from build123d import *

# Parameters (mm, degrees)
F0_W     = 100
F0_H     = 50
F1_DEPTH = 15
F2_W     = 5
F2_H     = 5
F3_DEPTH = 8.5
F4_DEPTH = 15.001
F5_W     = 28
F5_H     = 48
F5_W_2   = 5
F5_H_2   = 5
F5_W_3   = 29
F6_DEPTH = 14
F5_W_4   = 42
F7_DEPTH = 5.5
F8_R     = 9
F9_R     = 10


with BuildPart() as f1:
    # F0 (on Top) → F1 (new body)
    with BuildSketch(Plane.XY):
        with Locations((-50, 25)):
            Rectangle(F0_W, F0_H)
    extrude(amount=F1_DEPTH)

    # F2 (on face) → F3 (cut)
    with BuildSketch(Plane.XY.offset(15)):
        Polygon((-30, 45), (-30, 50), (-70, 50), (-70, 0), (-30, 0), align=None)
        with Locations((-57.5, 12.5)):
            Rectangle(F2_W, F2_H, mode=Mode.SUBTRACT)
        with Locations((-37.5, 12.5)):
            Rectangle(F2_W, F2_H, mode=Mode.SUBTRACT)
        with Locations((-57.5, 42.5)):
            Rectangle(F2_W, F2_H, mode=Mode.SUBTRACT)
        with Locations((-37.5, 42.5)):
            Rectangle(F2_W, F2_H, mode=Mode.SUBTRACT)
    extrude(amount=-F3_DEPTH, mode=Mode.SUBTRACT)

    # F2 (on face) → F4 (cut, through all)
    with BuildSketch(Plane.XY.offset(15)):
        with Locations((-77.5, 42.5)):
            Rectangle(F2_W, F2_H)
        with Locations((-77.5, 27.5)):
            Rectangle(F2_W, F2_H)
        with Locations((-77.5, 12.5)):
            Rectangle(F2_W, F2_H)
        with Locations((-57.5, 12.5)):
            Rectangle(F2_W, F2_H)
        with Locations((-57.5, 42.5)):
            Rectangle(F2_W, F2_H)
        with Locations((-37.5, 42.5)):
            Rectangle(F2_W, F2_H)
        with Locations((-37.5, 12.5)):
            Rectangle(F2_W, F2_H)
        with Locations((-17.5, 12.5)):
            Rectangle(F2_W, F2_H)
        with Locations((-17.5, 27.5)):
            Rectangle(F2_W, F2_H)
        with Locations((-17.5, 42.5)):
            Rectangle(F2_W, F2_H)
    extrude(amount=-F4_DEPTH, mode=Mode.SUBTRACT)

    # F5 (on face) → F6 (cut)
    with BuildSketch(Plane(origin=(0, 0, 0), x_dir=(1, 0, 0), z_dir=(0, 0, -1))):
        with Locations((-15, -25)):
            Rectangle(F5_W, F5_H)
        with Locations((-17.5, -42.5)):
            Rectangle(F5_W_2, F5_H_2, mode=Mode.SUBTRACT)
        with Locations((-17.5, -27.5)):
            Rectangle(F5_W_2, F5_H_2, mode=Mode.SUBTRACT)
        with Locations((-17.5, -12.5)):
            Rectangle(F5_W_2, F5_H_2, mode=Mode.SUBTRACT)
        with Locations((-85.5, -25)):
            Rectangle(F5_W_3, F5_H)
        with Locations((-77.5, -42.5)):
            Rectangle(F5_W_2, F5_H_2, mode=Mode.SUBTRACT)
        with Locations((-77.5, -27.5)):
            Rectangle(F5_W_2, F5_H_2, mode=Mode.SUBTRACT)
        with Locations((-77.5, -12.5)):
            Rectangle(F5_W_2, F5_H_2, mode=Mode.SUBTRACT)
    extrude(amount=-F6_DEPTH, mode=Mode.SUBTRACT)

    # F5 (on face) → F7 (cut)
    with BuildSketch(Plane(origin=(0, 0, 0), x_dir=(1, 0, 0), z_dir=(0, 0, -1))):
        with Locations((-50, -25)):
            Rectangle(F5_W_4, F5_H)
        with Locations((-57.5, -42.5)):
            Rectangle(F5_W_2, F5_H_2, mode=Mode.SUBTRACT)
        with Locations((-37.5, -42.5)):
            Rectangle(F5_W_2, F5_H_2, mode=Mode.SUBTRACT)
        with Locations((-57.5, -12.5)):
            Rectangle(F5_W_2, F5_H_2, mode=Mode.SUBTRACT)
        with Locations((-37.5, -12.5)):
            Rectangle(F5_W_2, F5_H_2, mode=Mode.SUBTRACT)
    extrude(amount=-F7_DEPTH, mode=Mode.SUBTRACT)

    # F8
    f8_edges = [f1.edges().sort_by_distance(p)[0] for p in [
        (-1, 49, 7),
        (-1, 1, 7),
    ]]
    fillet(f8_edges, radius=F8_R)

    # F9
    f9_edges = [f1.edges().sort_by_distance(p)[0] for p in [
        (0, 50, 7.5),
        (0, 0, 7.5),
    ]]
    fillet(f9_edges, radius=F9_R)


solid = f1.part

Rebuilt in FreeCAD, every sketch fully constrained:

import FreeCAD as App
import Part
import Sketcher
from FreeCAD import Vector
Q = App.Units.Quantity


def edges_at(feature, points):
    """Names of the edges that pass closest to the given points."""
    edges = feature.Shape.Edges
    near = lambda p: min(range(len(edges)), key=lambda i: edges[i].distToShape(Part.Vertex(*p))[0])
    return sorted({f"Edge{near(p) + 1}" for p in points})

doc = App.newDocument("Part")
body = doc.addObject("PartDesign::Body", "Body")

# Sketch on XY plane
sketch1 = body.newObject("Sketcher::SketchObject", "Sketch")
sketch1.AttachmentSupport = (doc.getObject("XY_Plane"), [""])
sketch1.MapMode = "FlatFace"
sketch1.addGeometry(Part.LineSegment(Vector(-100, 50, 0), Vector(-100, 0, 0)), False)
sketch1.addGeometry(Part.LineSegment(Vector(-100, 0, 0), Vector(0, 0, 0)), False)
sketch1.addGeometry(Part.LineSegment(Vector(0, 0, 0), Vector(0, 50, 0)), False)
sketch1.addGeometry(Part.LineSegment(Vector(0, 50, 0), Vector(-100, 50, 0)), False)
sketch1.addConstraint(Sketcher.Constraint("Coincident", 0, 2, 1, 1))
sketch1.addConstraint(Sketcher.Constraint("Coincident", 1, 2, 2, 1))
sketch1.addConstraint(Sketcher.Constraint("Coincident", 2, 2, 3, 1))
sketch1.addConstraint(Sketcher.Constraint("Coincident", 3, 2, 0, 1))
sketch1.addConstraint(Sketcher.Constraint("Vertical", 0))
sketch1.addConstraint(Sketcher.Constraint("Horizontal", 1))
sketch1.addConstraint(Sketcher.Constraint("Vertical", 2))
sketch1.addConstraint(Sketcher.Constraint("Horizontal", 3))
sketch1.addConstraint(Sketcher.Constraint("Coincident", 1, 2, -1, 1))
sketch1.addConstraint(Sketcher.Constraint("DistanceX", 1, 1, 1, 2, Q("100 mm")))
sketch1.addConstraint(Sketcher.Constraint("DistanceY", 0, 2, 0, 1, Q("50 mm")))
pad1 = body.newObject("PartDesign::Pad", "Pad")
pad1.Profile = sketch1
pad1.Length = 15

# Sketch on XY plane
sketch2 = body.newObject("Sketcher::SketchObject", "Sketch001")
sketch2.AttachmentSupport = (doc.getObject("XY_Plane"), [""])
sketch2.MapMode = "FlatFace"
sketch2.AttachmentOffset = App.Placement(Vector(0, 0, 15), App.Rotation())
sketch2.addGeometry(Part.LineSegment(Vector(-30, 50, 0), Vector(-70, 50, 0)), False)
sketch2.addGeometry(Part.LineSegment(Vector(-70, 50, 0), Vector(-70, 0, 0)), False)
sketch2.addGeometry(Part.LineSegment(Vector(-70, 0, 0), Vector(-30, 0, 0)), False)
sketch2.addGeometry(Part.LineSegment(Vector(-30, 0, 0), Vector(-30, 50, 0)), False)
sketch2.addGeometry(Part.LineSegment(Vector(-55, 10, 0), Vector(-60, 10, 0)), False)
sketch2.addGeometry(Part.LineSegment(Vector(-60, 10, 0), Vector(-60, 15, 0)), False)
sketch2.addGeometry(Part.LineSegment(Vector(-60, 15, 0), Vector(-55, 15, 0)), False)
sketch2.addGeometry(Part.LineSegment(Vector(-55, 15, 0), Vector(-55, 10, 0)), False)
sketch2.addGeometry(Part.LineSegment(Vector(-35, 10, 0), Vector(-40, 10, 0)), False)
sketch2.addGeometry(Part.LineSegment(Vector(-40, 10, 0), Vector(-40, 15, 0)), False)
sketch2.addGeometry(Part.LineSegment(Vector(-40, 15, 0), Vector(-35, 15, 0)), False)
sketch2.addGeometry(Part.LineSegment(Vector(-35, 15, 0), Vector(-35, 10, 0)), False)
sketch2.addGeometry(Part.LineSegment(Vector(-55, 40, 0), Vector(-60, 40, 0)), False)
sketch2.addGeometry(Part.LineSegment(Vector(-60, 40, 0), Vector(-60, 45, 0)), False)
sketch2.addGeometry(Part.LineSegment(Vector(-60, 45, 0), Vector(-55, 45, 0)), False)
sketch2.addGeometry(Part.LineSegment(Vector(-55, 45, 0), Vector(-55, 40, 0)), False)
sketch2.addGeometry(Part.LineSegment(Vector(-35, 40, 0), Vector(-40, 40, 0)), False)
sketch2.addGeometry(Part.LineSegment(Vector(-40, 40, 0), Vector(-40, 45, 0)), False)
sketch2.addGeometry(Part.LineSegment(Vector(-40, 45, 0), Vector(-35, 45, 0)), False)
sketch2.addGeometry(Part.LineSegment(Vector(-35, 45, 0), Vector(-35, 40, 0)), False)
sketch2.addConstraint(Sketcher.Constraint("Coincident", 0, 2, 1, 1))
sketch2.addConstraint(Sketcher.Constraint("Coincident", 1, 2, 2, 1))
sketch2.addConstraint(Sketcher.Constraint("Coincident", 2, 2, 3, 1))
sketch2.addConstraint(Sketcher.Constraint("Coincident", 3, 2, 0, 1))
sketch2.addConstraint(Sketcher.Constraint("Coincident", 4, 2, 5, 1))
sketch2.addConstraint(Sketcher.Constraint("Coincident", 5, 2, 6, 1))
sketch2.addConstraint(Sketcher.Constraint("Coincident", 6, 2, 7, 1))
sketch2.addConstraint(Sketcher.Constraint("Coincident", 7, 2, 4, 1))
sketch2.addConstraint(Sketcher.Constraint("Coincident", 8, 2, 9, 1))
sketch2.addConstraint(Sketcher.Constraint("Coincident", 9, 2, 10, 1))
sketch2.addConstraint(Sketcher.Constraint("Coincident", 10, 2, 11, 1))
sketch2.addConstraint(Sketcher.Constraint("Coincident", 11, 2, 8, 1))
sketch2.addConstraint(Sketcher.Constraint("Coincident", 12, 2, 13, 1))
sketch2.addConstraint(Sketcher.Constraint("Coincident", 13, 2, 14, 1))
sketch2.addConstraint(Sketcher.Constraint("Coincident", 14, 2, 15, 1))
sketch2.addConstraint(Sketcher.Constraint("Coincident", 15, 2, 12, 1))
sketch2.addConstraint(Sketcher.Constraint("Coincident", 16, 2, 17, 1))
sketch2.addConstraint(Sketcher.Constraint("Coincident", 17, 2, 18, 1))
sketch2.addConstraint(Sketcher.Constraint("Coincident", 18, 2, 19, 1))
sketch2.addConstraint(Sketcher.Constraint("Coincident", 19, 2, 16, 1))
sketch2.addConstraint(Sketcher.Constraint("Horizontal", 0))
sketch2.addConstraint(Sketcher.Constraint("Vertical", 1))
sketch2.addConstraint(Sketcher.Constraint("Horizontal", 2))
sketch2.addConstraint(Sketcher.Constraint("Vertical", 3))
sketch2.addConstraint(Sketcher.Constraint("Horizontal", 4))
sketch2.addConstraint(Sketcher.Constraint("Vertical", 5))
sketch2.addConstraint(Sketcher.Constraint("Horizontal", 6))
sketch2.addConstraint(Sketcher.Constraint("Vertical", 7))
sketch2.addConstraint(Sketcher.Constraint("Horizontal", 8))
sketch2.addConstraint(Sketcher.Constraint("Vertical", 9))
sketch2.addConstraint(Sketcher.Constraint("Horizontal", 10))
sketch2.addConstraint(Sketcher.Constraint("Vertical", 11))
sketch2.addConstraint(Sketcher.Constraint("Horizontal", 12))
sketch2.addConstraint(Sketcher.Constraint("Vertical", 13))
sketch2.addConstraint(Sketcher.Constraint("Horizontal", 14))
sketch2.addConstraint(Sketcher.Constraint("Vertical", 15))
sketch2.addConstraint(Sketcher.Constraint("Horizontal", 16))
sketch2.addConstraint(Sketcher.Constraint("Vertical", 17))
sketch2.addConstraint(Sketcher.Constraint("Horizontal", 18))
sketch2.addConstraint(Sketcher.Constraint("Vertical", 19))
sketch2.addConstraint(Sketcher.Constraint("PointOnObject", 1, 2, -1))
sketch2.addConstraint(Sketcher.Constraint("Horizontal", 7, 2, 8, 2))
sketch2.addConstraint(Sketcher.Constraint("Horizontal", 6, 2, 9, 2))
sketch2.addConstraint(Sketcher.Constraint("Horizontal", 15, 2, 16, 2))
sketch2.addConstraint(Sketcher.Constraint("Horizontal", 14, 2, 17, 2))
sketch2.addConstraint(Sketcher.Constraint("Vertical", 5, 2, 12, 2))
sketch2.addConstraint(Sketcher.Constraint("Vertical", 7, 2, 14, 2))
sketch2.addConstraint(Sketcher.Constraint("Vertical", 9, 2, 16, 2))
sketch2.addConstraint(Sketcher.Constraint("Vertical", 11, 2, 18, 2))
sketch2.addConstraint(Sketcher.Constraint("Equal", 6, 8))
sketch2.addConstraint(Sketcher.Constraint("Equal", 18, 5))
sketch2.addConstraint(Sketcher.Constraint("Equal", 11, 13))
sketch2.addConstraint(Sketcher.Constraint("DistanceX", 0, 2, 0, 1, Q("40 mm")))
sketch2.addConstraint(Sketcher.Constraint("DistanceX", 4, 2, 4, 1, Q("5 mm")))
sketch2.addConstraint(Sketcher.Constraint("DistanceY", 1, 2, 1, 1, Q("50 mm")))
sketch2.addConstraint(Sketcher.Constraint("DistanceX", 0, 2, -1, 1, Q("70 mm")))
sketch2.addConstraint(Sketcher.Constraint("DistanceX", 4, 2, -1, 1, Q("60 mm")))
sketch2.addConstraint(Sketcher.Constraint("DistanceY", -1, 1, 4, 2, Q("10 mm")))
sketch2.addConstraint(Sketcher.Constraint("DistanceX", 8, 2, -1, 1, Q("40 mm")))
sketch2.addConstraint(Sketcher.Constraint("DistanceY", -1, 1, 12, 2, Q("40 mm")))
pocket1 = body.newObject("PartDesign::Pocket", "Pocket")
pocket1.Profile = sketch2
pocket1.Length = 8.5

# Sketch on XY plane
sketch3 = body.newObject("Sketcher::SketchObject", "Sketch002")
sketch3.AttachmentSupport = (doc.getObject("XY_Plane"), [""])
sketch3.MapMode = "FlatFace"
sketch3.AttachmentOffset = App.Placement(Vector(0, 0, 15), App.Rotation())
sketch3.addGeometry(Part.LineSegment(Vector(-80, 45, 0), Vector(-80, 40, 0)), False)
sketch3.addGeometry(Part.LineSegment(Vector(-80, 40, 0), Vector(-75, 40, 0)), False)
sketch3.addGeometry(Part.LineSegment(Vector(-75, 40, 0), Vector(-75, 45, 0)), False)
sketch3.addGeometry(Part.LineSegment(Vector(-75, 45, 0), Vector(-80, 45, 0)), False)
sketch3.addGeometry(Part.LineSegment(Vector(-80, 30, 0), Vector(-80, 25, 0)), False)
sketch3.addGeometry(Part.LineSegment(Vector(-80, 25, 0), Vector(-75, 25, 0)), False)
sketch3.addGeometry(Part.LineSegment(Vector(-75, 25, 0), Vector(-75, 30, 0)), False)
sketch3.addGeometry(Part.LineSegment(Vector(-75, 30, 0), Vector(-80, 30, 0)), False)
sketch3.addGeometry(Part.LineSegment(Vector(-80, 15, 0), Vector(-80, 10, 0)), False)
sketch3.addGeometry(Part.LineSegment(Vector(-80, 10, 0), Vector(-75, 10, 0)), False)
sketch3.addGeometry(Part.LineSegment(Vector(-75, 10, 0), Vector(-75, 15, 0)), False)
sketch3.addGeometry(Part.LineSegment(Vector(-75, 15, 0), Vector(-80, 15, 0)), False)
sketch3.addGeometry(Part.LineSegment(Vector(-60, 15, 0), Vector(-60, 10, 0)), False)
sketch3.addGeometry(Part.LineSegment(Vector(-60, 10, 0), Vector(-55, 10, 0)), False)
sketch3.addGeometry(Part.LineSegment(Vector(-55, 10, 0), Vector(-55, 15, 0)), False)
sketch3.addGeometry(Part.LineSegment(Vector(-55, 15, 0), Vector(-60, 15, 0)), False)
sketch3.addGeometry(Part.LineSegment(Vector(-60, 45, 0), Vector(-60, 40, 0)), False)
sketch3.addGeometry(Part.LineSegment(Vector(-60, 40, 0), Vector(-55, 40, 0)), False)
sketch3.addGeometry(Part.LineSegment(Vector(-55, 40, 0), Vector(-55, 45, 0)), False)
sketch3.addGeometry(Part.LineSegment(Vector(-55, 45, 0), Vector(-60, 45, 0)), False)
sketch3.addGeometry(Part.LineSegment(Vector(-40, 45, 0), Vector(-40, 40, 0)), False)
sketch3.addGeometry(Part.LineSegment(Vector(-40, 40, 0), Vector(-35, 40, 0)), False)
sketch3.addGeometry(Part.LineSegment(Vector(-35, 40, 0), Vector(-35, 45, 0)), False)
sketch3.addGeometry(Part.LineSegment(Vector(-35, 45, 0), Vector(-40, 45, 0)), False)
sketch3.addGeometry(Part.LineSegment(Vector(-40, 15, 0), Vector(-40, 10, 0)), False)
sketch3.addGeometry(Part.LineSegment(Vector(-40, 10, 0), Vector(-35, 10, 0)), False)
sketch3.addGeometry(Part.LineSegment(Vector(-35, 10, 0), Vector(-35, 15, 0)), False)
sketch3.addGeometry(Part.LineSegment(Vector(-35, 15, 0), Vector(-40, 15, 0)), False)
sketch3.addGeometry(Part.LineSegment(Vector(-20, 15, 0), Vector(-20, 10, 0)), False)
sketch3.addGeometry(Part.LineSegment(Vector(-20, 10, 0), Vector(-15, 10, 0)), False)
sketch3.addGeometry(Part.LineSegment(Vector(-15, 10, 0), Vector(-15, 15, 0)), False)
sketch3.addGeometry(Part.LineSegment(Vector(-15, 15, 0), Vector(-20, 15, 0)), False)
sketch3.addGeometry(Part.LineSegment(Vector(-20, 30, 0), Vector(-20, 25, 0)), False)
sketch3.addGeometry(Part.LineSegment(Vector(-20, 25, 0), Vector(-15, 25, 0)), False)
sketch3.addGeometry(Part.LineSegment(Vector(-15, 25, 0), Vector(-15, 30, 0)), False)
sketch3.addGeometry(Part.LineSegment(Vector(-15, 30, 0), Vector(-20, 30, 0)), False)
sketch3.addGeometry(Part.LineSegment(Vector(-20, 45, 0), Vector(-20, 40, 0)), False)
sketch3.addGeometry(Part.LineSegment(Vector(-20, 40, 0), Vector(-15, 40, 0)), False)
sketch3.addGeometry(Part.LineSegment(Vector(-15, 40, 0), Vector(-15, 45, 0)), False)
sketch3.addGeometry(Part.LineSegment(Vector(-15, 45, 0), Vector(-20, 45, 0)), False)
sketch3.addConstraint(Sketcher.Constraint("Coincident", 0, 2, 1, 1))
sketch3.addConstraint(Sketcher.Constraint("Coincident", 1, 2, 2, 1))
sketch3.addConstraint(Sketcher.Constraint("Coincident", 2, 2, 3, 1))
sketch3.addConstraint(Sketcher.Constraint("Coincident", 3, 2, 0, 1))
sketch3.addConstraint(Sketcher.Constraint("Coincident", 4, 2, 5, 1))
sketch3.addConstraint(Sketcher.Constraint("Coincident", 5, 2, 6, 1))
sketch3.addConstraint(Sketcher.Constraint("Coincident", 6, 2, 7, 1))
sketch3.addConstraint(Sketcher.Constraint("Coincident", 7, 2, 4, 1))
sketch3.addConstraint(Sketcher.Constraint("Coincident", 8, 2, 9, 1))
sketch3.addConstraint(Sketcher.Constraint("Coincident", 9, 2, 10, 1))
sketch3.addConstraint(Sketcher.Constraint("Coincident", 10, 2, 11, 1))
sketch3.addConstraint(Sketcher.Constraint("Coincident", 11, 2, 8, 1))
sketch3.addConstraint(Sketcher.Constraint("Coincident", 12, 2, 13, 1))
sketch3.addConstraint(Sketcher.Constraint("Coincident", 13, 2, 14, 1))
sketch3.addConstraint(Sketcher.Constraint("Coincident", 14, 2, 15, 1))
sketch3.addConstraint(Sketcher.Constraint("Coincident", 15, 2, 12, 1))
sketch3.addConstraint(Sketcher.Constraint("Coincident", 16, 2, 17, 1))
sketch3.addConstraint(Sketcher.Constraint("Coincident", 17, 2, 18, 1))
sketch3.addConstraint(Sketcher.Constraint("Coincident", 18, 2, 19, 1))
sketch3.addConstraint(Sketcher.Constraint("Coincident", 19, 2, 16, 1))
sketch3.addConstraint(Sketcher.Constraint("Coincident", 20, 2, 21, 1))
sketch3.addConstraint(Sketcher.Constraint("Coincident", 21, 2, 22, 1))
sketch3.addConstraint(Sketcher.Constraint("Coincident", 22, 2, 23, 1))
sketch3.addConstraint(Sketcher.Constraint("Coincident", 23, 2, 20, 1))
sketch3.addConstraint(Sketcher.Constraint("Coincident", 24, 2, 25, 1))
sketch3.addConstraint(Sketcher.Constraint("Coincident", 25, 2, 26, 1))
sketch3.addConstraint(Sketcher.Constraint("Coincident", 26, 2, 27, 1))
sketch3.addConstraint(Sketcher.Constraint("Coincident", 27, 2, 24, 1))
sketch3.addConstraint(Sketcher.Constraint("Coincident", 28, 2, 29, 1))
sketch3.addConstraint(Sketcher.Constraint("Coincident", 29, 2, 30, 1))
sketch3.addConstraint(Sketcher.Constraint("Coincident", 30, 2, 31, 1))
sketch3.addConstraint(Sketcher.Constraint("Coincident", 31, 2, 28, 1))
sketch3.addConstraint(Sketcher.Constraint("Coincident", 32, 2, 33, 1))
sketch3.addConstraint(Sketcher.Constraint("Coincident", 33, 2, 34, 1))
sketch3.addConstraint(Sketcher.Constraint("Coincident", 34, 2, 35, 1))
sketch3.addConstraint(Sketcher.Constraint("Coincident", 35, 2, 32, 1))
sketch3.addConstraint(Sketcher.Constraint("Coincident", 36, 2, 37, 1))
sketch3.addConstraint(Sketcher.Constraint("Coincident", 37, 2, 38, 1))
sketch3.addConstraint(Sketcher.Constraint("Coincident", 38, 2, 39, 1))
sketch3.addConstraint(Sketcher.Constraint("Coincident", 39, 2, 36, 1))
sketch3.addConstraint(Sketcher.Constraint("Vertical", 0))
sketch3.addConstraint(Sketcher.Constraint("Horizontal", 1))
sketch3.addConstraint(Sketcher.Constraint("Vertical", 2))
sketch3.addConstraint(Sketcher.Constraint("Horizontal", 3))
sketch3.addConstraint(Sketcher.Constraint("Vertical", 4))
sketch3.addConstraint(Sketcher.Constraint("Horizontal", 5))
sketch3.addConstraint(Sketcher.Constraint("Vertical", 6))
sketch3.addConstraint(Sketcher.Constraint("Horizontal", 7))
sketch3.addConstraint(Sketcher.Constraint("Vertical", 8))
sketch3.addConstraint(Sketcher.Constraint("Horizontal", 9))
sketch3.addConstraint(Sketcher.Constraint("Vertical", 10))
sketch3.addConstraint(Sketcher.Constraint("Horizontal", 11))
sketch3.addConstraint(Sketcher.Constraint("Vertical", 12))
sketch3.addConstraint(Sketcher.Constraint("Horizontal", 13))
sketch3.addConstraint(Sketcher.Constraint("Vertical", 14))
sketch3.addConstraint(Sketcher.Constraint("Horizontal", 15))
sketch3.addConstraint(Sketcher.Constraint("Vertical", 16))
sketch3.addConstraint(Sketcher.Constraint("Horizontal", 17))
sketch3.addConstraint(Sketcher.Constraint("Vertical", 18))
sketch3.addConstraint(Sketcher.Constraint("Horizontal", 19))
sketch3.addConstraint(Sketcher.Constraint("Vertical", 20))
sketch3.addConstraint(Sketcher.Constraint("Horizontal", 21))
sketch3.addConstraint(Sketcher.Constraint("Vertical", 22))
sketch3.addConstraint(Sketcher.Constraint("Horizontal", 23))
sketch3.addConstraint(Sketcher.Constraint("Vertical", 24))
sketch3.addConstraint(Sketcher.Constraint("Horizontal", 25))
sketch3.addConstraint(Sketcher.Constraint("Vertical", 26))
sketch3.addConstraint(Sketcher.Constraint("Horizontal", 27))
sketch3.addConstraint(Sketcher.Constraint("Vertical", 28))
sketch3.addConstraint(Sketcher.Constraint("Horizontal", 29))
sketch3.addConstraint(Sketcher.Constraint("Vertical", 30))
sketch3.addConstraint(Sketcher.Constraint("Horizontal", 31))
sketch3.addConstraint(Sketcher.Constraint("Vertical", 32))
sketch3.addConstraint(Sketcher.Constraint("Horizontal", 33))
sketch3.addConstraint(Sketcher.Constraint("Vertical", 34))
sketch3.addConstraint(Sketcher.Constraint("Horizontal", 35))
sketch3.addConstraint(Sketcher.Constraint("Vertical", 36))
sketch3.addConstraint(Sketcher.Constraint("Horizontal", 37))
sketch3.addConstraint(Sketcher.Constraint("Vertical", 38))
sketch3.addConstraint(Sketcher.Constraint("Horizontal", 39))
sketch3.addConstraint(Sketcher.Constraint("Horizontal", 9, 2, 12, 2))
sketch3.addConstraint(Sketcher.Constraint("Horizontal", 11, 2, 14, 2))
sketch3.addConstraint(Sketcher.Constraint("Horizontal", 1, 2, 16, 2))
sketch3.addConstraint(Sketcher.Constraint("Horizontal", 3, 2, 18, 2))
sketch3.addConstraint(Sketcher.Constraint("Horizontal", 17, 2, 20, 2))
sketch3.addConstraint(Sketcher.Constraint("Horizontal", 19, 2, 22, 2))
sketch3.addConstraint(Sketcher.Constraint("Horizontal", 13, 2, 24, 2))
sketch3.addConstraint(Sketcher.Constraint("Horizontal", 15, 2, 26, 2))
sketch3.addConstraint(Sketcher.Constraint("Horizontal", 25, 2, 28, 2))
sketch3.addConstraint(Sketcher.Constraint("Horizontal", 27, 2, 30, 2))
sketch3.addConstraint(Sketcher.Constraint("Horizontal", 5, 2, 32, 2))
sketch3.addConstraint(Sketcher.Constraint("Horizontal", 7, 2, 34, 2))
sketch3.addConstraint(Sketcher.Constraint("Horizontal", 21, 2, 36, 2))
sketch3.addConstraint(Sketcher.Constraint("Horizontal", 23, 2, 38, 2))
sketch3.addConstraint(Sketcher.Constraint("Vertical", 3, 2, 4, 2))
sketch3.addConstraint(Sketcher.Constraint("Vertical", 2, 2, 5, 2))
sketch3.addConstraint(Sketcher.Constraint("Vertical", 7, 2, 8, 2))
sketch3.addConstraint(Sketcher.Constraint("Vertical", 6, 2, 9, 2))
sketch3.addConstraint(Sketcher.Constraint("Vertical", 15, 2, 16, 2))
sketch3.addConstraint(Sketcher.Constraint("Vertical", 14, 2, 17, 2))
sketch3.addConstraint(Sketcher.Constraint("Vertical", 23, 2, 24, 2))
sketch3.addConstraint(Sketcher.Constraint("Vertical", 22, 2, 25, 2))
sketch3.addConstraint(Sketcher.Constraint("Vertical", 31, 2, 32, 2))
sketch3.addConstraint(Sketcher.Constraint("Vertical", 30, 2, 33, 2))
sketch3.addConstraint(Sketcher.Constraint("Vertical", 35, 2, 36, 2))
sketch3.addConstraint(Sketcher.Constraint("Vertical", 34, 2, 37, 2))
sketch3.addConstraint(Sketcher.Constraint("Equal", 11, 13))
sketch3.addConstraint(Sketcher.Constraint("Equal", 19, 21))
sketch3.addConstraint(Sketcher.Constraint("Equal", 27, 29))
sketch3.addConstraint(Sketcher.Constraint("Equal", 39, 0))
sketch3.addConstraint(Sketcher.Constraint("Equal", 2, 4))
sketch3.addConstraint(Sketcher.Constraint("Equal", 6, 8))
sketch3.addConstraint(Sketcher.Constraint("DistanceX", 1, 1, 1, 2, Q("5 mm")))
sketch3.addConstraint(Sketcher.Constraint("DistanceX", 0, 2, -1, 1, Q("80 mm")))
sketch3.addConstraint(Sketcher.Constraint("DistanceY", -1, 1, 0, 2, Q("40 mm")))
sketch3.addConstraint(Sketcher.Constraint("DistanceY", -1, 1, 4, 2, Q("25 mm")))
sketch3.addConstraint(Sketcher.Constraint("DistanceY", -1, 1, 8, 2, Q("10 mm")))
sketch3.addConstraint(Sketcher.Constraint("DistanceX", 12, 2, -1, 1, Q("60 mm")))
sketch3.addConstraint(Sketcher.Constraint("DistanceX", 20, 2, -1, 1, Q("40 mm")))
sketch3.addConstraint(Sketcher.Constraint("DistanceX", 28, 2, -1, 1, Q("20 mm")))
pocket2 = body.newObject("PartDesign::Pocket", "Pocket001")
pocket2.Profile = sketch3
pocket2.Type = "ThroughAll"

# Sketch on XY plane
sketch4 = body.newObject("Sketcher::SketchObject", "Sketch003")
sketch4.AttachmentSupport = (doc.getObject("XY_Plane"), [""])
sketch4.MapMode = "FlatFace"
sketch4.addGeometry(Part.LineSegment(Vector(-29, 1, 0), Vector(-29, 49, 0)), False)
sketch4.addGeometry(Part.LineSegment(Vector(-29, 49, 0), Vector(-1, 49, 0)), False)
sketch4.addGeometry(Part.LineSegment(Vector(-1, 49, 0), Vector(-1, 1, 0)), False)
sketch4.addGeometry(Part.LineSegment(Vector(-1, 1, 0), Vector(-29, 1, 0)), False)
sketch4.addGeometry(Part.LineSegment(Vector(-15, 45, 0), Vector(-20, 45, 0)), False)
sketch4.addGeometry(Part.LineSegment(Vector(-20, 45, 0), Vector(-20, 40, 0)), False)
sketch4.addGeometry(Part.LineSegment(Vector(-20, 40, 0), Vector(-15, 40, 0)), False)
sketch4.addGeometry(Part.LineSegment(Vector(-15, 40, 0), Vector(-15, 45, 0)), False)
sketch4.addGeometry(Part.LineSegment(Vector(-15, 30, 0), Vector(-20, 30, 0)), False)
sketch4.addGeometry(Part.LineSegment(Vector(-20, 30, 0), Vector(-20, 25, 0)), False)
sketch4.addGeometry(Part.LineSegment(Vector(-20, 25, 0), Vector(-15, 25, 0)), False)
sketch4.addGeometry(Part.LineSegment(Vector(-15, 25, 0), Vector(-15, 30, 0)), False)
sketch4.addGeometry(Part.LineSegment(Vector(-15, 15, 0), Vector(-20, 15, 0)), False)
sketch4.addGeometry(Part.LineSegment(Vector(-20, 15, 0), Vector(-20, 10, 0)), False)
sketch4.addGeometry(Part.LineSegment(Vector(-20, 10, 0), Vector(-15, 10, 0)), False)
sketch4.addGeometry(Part.LineSegment(Vector(-15, 10, 0), Vector(-15, 15, 0)), False)
sketch4.addGeometry(Part.LineSegment(Vector(-100, 1, 0), Vector(-100, 49, 0)), False)
sketch4.addGeometry(Part.LineSegment(Vector(-100, 49, 0), Vector(-71, 49, 0)), False)
sketch4.addGeometry(Part.LineSegment(Vector(-71, 49, 0), Vector(-71, 1, 0)), False)
sketch4.addGeometry(Part.LineSegment(Vector(-71, 1, 0), Vector(-100, 1, 0)), False)
sketch4.addGeometry(Part.LineSegment(Vector(-75, 45, 0), Vector(-80, 45, 0)), False)
sketch4.addGeometry(Part.LineSegment(Vector(-80, 45, 0), Vector(-80, 40, 0)), False)
sketch4.addGeometry(Part.LineSegment(Vector(-80, 40, 0), Vector(-75, 40, 0)), False)
sketch4.addGeometry(Part.LineSegment(Vector(-75, 40, 0), Vector(-75, 45, 0)), False)
sketch4.addGeometry(Part.LineSegment(Vector(-75, 30, 0), Vector(-80, 30, 0)), False)
sketch4.addGeometry(Part.LineSegment(Vector(-80, 30, 0), Vector(-80, 25, 0)), False)
sketch4.addGeometry(Part.LineSegment(Vector(-80, 25, 0), Vector(-75, 25, 0)), False)
sketch4.addGeometry(Part.LineSegment(Vector(-75, 25, 0), Vector(-75, 30, 0)), False)
sketch4.addGeometry(Part.LineSegment(Vector(-75, 15, 0), Vector(-80, 15, 0)), False)
sketch4.addGeometry(Part.LineSegment(Vector(-80, 15, 0), Vector(-80, 10, 0)), False)
sketch4.addGeometry(Part.LineSegment(Vector(-80, 10, 0), Vector(-75, 10, 0)), False)
sketch4.addGeometry(Part.LineSegment(Vector(-75, 10, 0), Vector(-75, 15, 0)), False)
sketch4.addConstraint(Sketcher.Constraint("Coincident", 0, 2, 1, 1))
sketch4.addConstraint(Sketcher.Constraint("Coincident", 1, 2, 2, 1))
sketch4.addConstraint(Sketcher.Constraint("Coincident", 2, 2, 3, 1))
sketch4.addConstraint(Sketcher.Constraint("Coincident", 3, 2, 0, 1))
sketch4.addConstraint(Sketcher.Constraint("Coincident", 4, 2, 5, 1))
sketch4.addConstraint(Sketcher.Constraint("Coincident", 5, 2, 6, 1))
sketch4.addConstraint(Sketcher.Constraint("Coincident", 6, 2, 7, 1))
sketch4.addConstraint(Sketcher.Constraint("Coincident", 7, 2, 4, 1))
sketch4.addConstraint(Sketcher.Constraint("Coincident", 8, 2, 9, 1))
sketch4.addConstraint(Sketcher.Constraint("Coincident", 9, 2, 10, 1))
sketch4.addConstraint(Sketcher.Constraint("Coincident", 10, 2, 11, 1))
sketch4.addConstraint(Sketcher.Constraint("Coincident", 11, 2, 8, 1))
sketch4.addConstraint(Sketcher.Constraint("Coincident", 12, 2, 13, 1))
sketch4.addConstraint(Sketcher.Constraint("Coincident", 13, 2, 14, 1))
sketch4.addConstraint(Sketcher.Constraint("Coincident", 14, 2, 15, 1))
sketch4.addConstraint(Sketcher.Constraint("Coincident", 15, 2, 12, 1))
sketch4.addConstraint(Sketcher.Constraint("Coincident", 16, 2, 17, 1))
sketch4.addConstraint(Sketcher.Constraint("Coincident", 17, 2, 18, 1))
sketch4.addConstraint(Sketcher.Constraint("Coincident", 18, 2, 19, 1))
sketch4.addConstraint(Sketcher.Constraint("Coincident", 19, 2, 16, 1))
sketch4.addConstraint(Sketcher.Constraint("Coincident", 20, 2, 21, 1))
sketch4.addConstraint(Sketcher.Constraint("Coincident", 21, 2, 22, 1))
sketch4.addConstraint(Sketcher.Constraint("Coincident", 22, 2, 23, 1))
sketch4.addConstraint(Sketcher.Constraint("Coincident", 23, 2, 20, 1))
sketch4.addConstraint(Sketcher.Constraint("Coincident", 24, 2, 25, 1))
sketch4.addConstraint(Sketcher.Constraint("Coincident", 25, 2, 26, 1))
sketch4.addConstraint(Sketcher.Constraint("Coincident", 26, 2, 27, 1))
sketch4.addConstraint(Sketcher.Constraint("Coincident", 27, 2, 24, 1))
sketch4.addConstraint(Sketcher.Constraint("Coincident", 28, 2, 29, 1))
sketch4.addConstraint(Sketcher.Constraint("Coincident", 29, 2, 30, 1))
sketch4.addConstraint(Sketcher.Constraint("Coincident", 30, 2, 31, 1))
sketch4.addConstraint(Sketcher.Constraint("Coincident", 31, 2, 28, 1))
sketch4.addConstraint(Sketcher.Constraint("Vertical", 0))
sketch4.addConstraint(Sketcher.Constraint("Horizontal", 1))
sketch4.addConstraint(Sketcher.Constraint("Vertical", 2))
sketch4.addConstraint(Sketcher.Constraint("Horizontal", 3))
sketch4.addConstraint(Sketcher.Constraint("Horizontal", 4))
sketch4.addConstraint(Sketcher.Constraint("Vertical", 5))
sketch4.addConstraint(Sketcher.Constraint("Horizontal", 6))
sketch4.addConstraint(Sketcher.Constraint("Vertical", 7))
sketch4.addConstraint(Sketcher.Constraint("Horizontal", 8))
sketch4.addConstraint(Sketcher.Constraint("Vertical", 9))
sketch4.addConstraint(Sketcher.Constraint("Horizontal", 10))
sketch4.addConstraint(Sketcher.Constraint("Vertical", 11))
sketch4.addConstraint(Sketcher.Constraint("Horizontal", 12))
sketch4.addConstraint(Sketcher.Constraint("Vertical", 13))
sketch4.addConstraint(Sketcher.Constraint("Horizontal", 14))
sketch4.addConstraint(Sketcher.Constraint("Vertical", 15))
sketch4.addConstraint(Sketcher.Constraint("Vertical", 16))
sketch4.addConstraint(Sketcher.Constraint("Horizontal", 17))
sketch4.addConstraint(Sketcher.Constraint("Vertical", 18))
sketch4.addConstraint(Sketcher.Constraint("Horizontal", 19))
sketch4.addConstraint(Sketcher.Constraint("Horizontal", 20))
sketch4.addConstraint(Sketcher.Constraint("Vertical", 21))
sketch4.addConstraint(Sketcher.Constraint("Horizontal", 22))
sketch4.addConstraint(Sketcher.Constraint("Vertical", 23))
sketch4.addConstraint(Sketcher.Constraint("Horizontal", 24))
sketch4.addConstraint(Sketcher.Constraint("Vertical", 25))
sketch4.addConstraint(Sketcher.Constraint("Horizontal", 26))
sketch4.addConstraint(Sketcher.Constraint("Vertical", 27))
sketch4.addConstraint(Sketcher.Constraint("Horizontal", 28))
sketch4.addConstraint(Sketcher.Constraint("Vertical", 29))
sketch4.addConstraint(Sketcher.Constraint("Horizontal", 30))
sketch4.addConstraint(Sketcher.Constraint("Vertical", 31))
sketch4.addConstraint(Sketcher.Constraint("Horizontal", 1, 2, 16, 2))
sketch4.addConstraint(Sketcher.Constraint("Horizontal", 3, 2, 18, 2))
sketch4.addConstraint(Sketcher.Constraint("Horizontal", 7, 2, 20, 2))
sketch4.addConstraint(Sketcher.Constraint("Horizontal", 6, 2, 21, 2))
sketch4.addConstraint(Sketcher.Constraint("Horizontal", 11, 2, 24, 2))
sketch4.addConstraint(Sketcher.Constraint("Horizontal", 10, 2, 25, 2))
sketch4.addConstraint(Sketcher.Constraint("Horizontal", 15, 2, 28, 2))
sketch4.addConstraint(Sketcher.Constraint("Horizontal", 14, 2, 29, 2))
sketch4.addConstraint(Sketcher.Constraint("Vertical", 5, 2, 8, 2))
sketch4.addConstraint(Sketcher.Constraint("Vertical", 7, 2, 10, 2))
sketch4.addConstraint(Sketcher.Constraint("Vertical", 9, 2, 12, 2))
sketch4.addConstraint(Sketcher.Constraint("Vertical", 11, 2, 14, 2))
sketch4.addConstraint(Sketcher.Constraint("Vertical", 21, 2, 24, 2))
sketch4.addConstraint(Sketcher.Constraint("Vertical", 23, 2, 26, 2))
sketch4.addConstraint(Sketcher.Constraint("Vertical", 25, 2, 28, 2))
sketch4.addConstraint(Sketcher.Constraint("Vertical", 27, 2, 30, 2))
sketch4.addConstraint(Sketcher.Constraint("Equal", 14, 20))
sketch4.addConstraint(Sketcher.Constraint("Equal", 30, 5))
sketch4.addConstraint(Sketcher.Constraint("Equal", 7, 9))
sketch4.addConstraint(Sketcher.Constraint("Equal", 11, 13))
sketch4.addConstraint(Sketcher.Constraint("DistanceX", 1, 1, 1, 2, Q("28 mm")))
sketch4.addConstraint(Sketcher.Constraint("DistanceX", 4, 2, 4, 1, Q("5 mm")))
sketch4.addConstraint(Sketcher.Constraint("DistanceX", 17, 1, 17, 2, Q("29 mm")))
sketch4.addConstraint(Sketcher.Constraint("DistanceY", 0, 1, 0, 2, Q("48 mm")))
sketch4.addConstraint(Sketcher.Constraint("DistanceX", 0, 2, -1, 1, Q("29 mm")))
sketch4.addConstraint(Sketcher.Constraint("DistanceY", -1, 1, 0, 2, Q("49 mm")))
sketch4.addConstraint(Sketcher.Constraint("DistanceX", 4, 2, -1, 1, Q("20 mm")))
sketch4.addConstraint(Sketcher.Constraint("DistanceY", -1, 1, 4, 2, Q("45 mm")))
sketch4.addConstraint(Sketcher.Constraint("DistanceY", -1, 1, 8, 2, Q("30 mm")))
sketch4.addConstraint(Sketcher.Constraint("DistanceY", -1, 1, 12, 2, Q("15 mm")))
sketch4.addConstraint(Sketcher.Constraint("DistanceX", 16, 2, -1, 1, Q("100 mm")))
sketch4.addConstraint(Sketcher.Constraint("DistanceX", 20, 2, -1, 1, Q("80 mm")))
pocket3 = body.newObject("PartDesign::Pocket", "Pocket002")
pocket3.Profile = sketch4
pocket3.Length = 14
pocket3.Reversed = True

# Sketch on XY plane
sketch5 = body.newObject("Sketcher::SketchObject", "Sketch004")
sketch5.AttachmentSupport = (doc.getObject("XY_Plane"), [""])
sketch5.MapMode = "FlatFace"
sketch5.addGeometry(Part.LineSegment(Vector(-71, 1, 0), Vector(-71, 49, 0)), False)
sketch5.addGeometry(Part.LineSegment(Vector(-71, 49, 0), Vector(-29, 49, 0)), False)
sketch5.addGeometry(Part.LineSegment(Vector(-29, 49, 0), Vector(-29, 1, 0)), False)
sketch5.addGeometry(Part.LineSegment(Vector(-29, 1, 0), Vector(-71, 1, 0)), False)
sketch5.addGeometry(Part.LineSegment(Vector(-55, 45, 0), Vector(-60, 45, 0)), False)
sketch5.addGeometry(Part.LineSegment(Vector(-60, 45, 0), Vector(-60, 40, 0)), False)
sketch5.addGeometry(Part.LineSegment(Vector(-60, 40, 0), Vector(-55, 40, 0)), False)
sketch5.addGeometry(Part.LineSegment(Vector(-55, 40, 0), Vector(-55, 45, 0)), False)
sketch5.addGeometry(Part.LineSegment(Vector(-35, 45, 0), Vector(-40, 45, 0)), False)
sketch5.addGeometry(Part.LineSegment(Vector(-40, 45, 0), Vector(-40, 40, 0)), False)
sketch5.addGeometry(Part.LineSegment(Vector(-40, 40, 0), Vector(-35, 40, 0)), False)
sketch5.addGeometry(Part.LineSegment(Vector(-35, 40, 0), Vector(-35, 45, 0)), False)
sketch5.addGeometry(Part.LineSegment(Vector(-55, 15, 0), Vector(-60, 15, 0)), False)
sketch5.addGeometry(Part.LineSegment(Vector(-60, 15, 0), Vector(-60, 10, 0)), False)
sketch5.addGeometry(Part.LineSegment(Vector(-60, 10, 0), Vector(-55, 10, 0)), False)
sketch5.addGeometry(Part.LineSegment(Vector(-55, 10, 0), Vector(-55, 15, 0)), False)
sketch5.addGeometry(Part.LineSegment(Vector(-35, 15, 0), Vector(-40, 15, 0)), False)
sketch5.addGeometry(Part.LineSegment(Vector(-40, 15, 0), Vector(-40, 10, 0)), False)
sketch5.addGeometry(Part.LineSegment(Vector(-40, 10, 0), Vector(-35, 10, 0)), False)
sketch5.addGeometry(Part.LineSegment(Vector(-35, 10, 0), Vector(-35, 15, 0)), False)
sketch5.addConstraint(Sketcher.Constraint("Coincident", 0, 2, 1, 1))
sketch5.addConstraint(Sketcher.Constraint("Coincident", 1, 2, 2, 1))
sketch5.addConstraint(Sketcher.Constraint("Coincident", 2, 2, 3, 1))
sketch5.addConstraint(Sketcher.Constraint("Coincident", 3, 2, 0, 1))
sketch5.addConstraint(Sketcher.Constraint("Coincident", 4, 2, 5, 1))
sketch5.addConstraint(Sketcher.Constraint("Coincident", 5, 2, 6, 1))
sketch5.addConstraint(Sketcher.Constraint("Coincident", 6, 2, 7, 1))
sketch5.addConstraint(Sketcher.Constraint("Coincident", 7, 2, 4, 1))
sketch5.addConstraint(Sketcher.Constraint("Coincident", 8, 2, 9, 1))
sketch5.addConstraint(Sketcher.Constraint("Coincident", 9, 2, 10, 1))
sketch5.addConstraint(Sketcher.Constraint("Coincident", 10, 2, 11, 1))
sketch5.addConstraint(Sketcher.Constraint("Coincident", 11, 2, 8, 1))
sketch5.addConstraint(Sketcher.Constraint("Coincident", 12, 2, 13, 1))
sketch5.addConstraint(Sketcher.Constraint("Coincident", 13, 2, 14, 1))
sketch5.addConstraint(Sketcher.Constraint("Coincident", 14, 2, 15, 1))
sketch5.addConstraint(Sketcher.Constraint("Coincident", 15, 2, 12, 1))
sketch5.addConstraint(Sketcher.Constraint("Coincident", 16, 2, 17, 1))
sketch5.addConstraint(Sketcher.Constraint("Coincident", 17, 2, 18, 1))
sketch5.addConstraint(Sketcher.Constraint("Coincident", 18, 2, 19, 1))
sketch5.addConstraint(Sketcher.Constraint("Coincident", 19, 2, 16, 1))
sketch5.addConstraint(Sketcher.Constraint("Vertical", 0))
sketch5.addConstraint(Sketcher.Constraint("Horizontal", 1))
sketch5.addConstraint(Sketcher.Constraint("Vertical", 2))
sketch5.addConstraint(Sketcher.Constraint("Horizontal", 3))
sketch5.addConstraint(Sketcher.Constraint("Horizontal", 4))
sketch5.addConstraint(Sketcher.Constraint("Vertical", 5))
sketch5.addConstraint(Sketcher.Constraint("Horizontal", 6))
sketch5.addConstraint(Sketcher.Constraint("Vertical", 7))
sketch5.addConstraint(Sketcher.Constraint("Horizontal", 8))
sketch5.addConstraint(Sketcher.Constraint("Vertical", 9))
sketch5.addConstraint(Sketcher.Constraint("Horizontal", 10))
sketch5.addConstraint(Sketcher.Constraint("Vertical", 11))
sketch5.addConstraint(Sketcher.Constraint("Horizontal", 12))
sketch5.addConstraint(Sketcher.Constraint("Vertical", 13))
sketch5.addConstraint(Sketcher.Constraint("Horizontal", 14))
sketch5.addConstraint(Sketcher.Constraint("Vertical", 15))
sketch5.addConstraint(Sketcher.Constraint("Horizontal", 16))
sketch5.addConstraint(Sketcher.Constraint("Vertical", 17))
sketch5.addConstraint(Sketcher.Constraint("Horizontal", 18))
sketch5.addConstraint(Sketcher.Constraint("Vertical", 19))
sketch5.addConstraint(Sketcher.Constraint("Horizontal", 7, 2, 8, 2))
sketch5.addConstraint(Sketcher.Constraint("Horizontal", 6, 2, 9, 2))
sketch5.addConstraint(Sketcher.Constraint("Horizontal", 15, 2, 16, 2))
sketch5.addConstraint(Sketcher.Constraint("Horizontal", 14, 2, 17, 2))
sketch5.addConstraint(Sketcher.Constraint("Vertical", 5, 2, 12, 2))
sketch5.addConstraint(Sketcher.Constraint("Vertical", 7, 2, 14, 2))
sketch5.addConstraint(Sketcher.Constraint("Vertical", 9, 2, 16, 2))
sketch5.addConstraint(Sketcher.Constraint("Vertical", 11, 2, 18, 2))
sketch5.addConstraint(Sketcher.Constraint("Equal", 6, 8))
sketch5.addConstraint(Sketcher.Constraint("Equal", 18, 5))
sketch5.addConstraint(Sketcher.Constraint("Equal", 11, 13))
sketch5.addConstraint(Sketcher.Constraint("DistanceX", 1, 1, 1, 2, Q("42 mm")))
sketch5.addConstraint(Sketcher.Constraint("DistanceX", 4, 2, 4, 1, Q("5 mm")))
sketch5.addConstraint(Sketcher.Constraint("DistanceY", 0, 1, 0, 2, Q("48 mm")))
sketch5.addConstraint(Sketcher.Constraint("DistanceX", 0, 2, -1, 1, Q("71 mm")))
sketch5.addConstraint(Sketcher.Constraint("DistanceY", -1, 1, 0, 2, Q("49 mm")))
sketch5.addConstraint(Sketcher.Constraint("DistanceX", 4, 2, -1, 1, Q("60 mm")))
sketch5.addConstraint(Sketcher.Constraint("DistanceY", -1, 1, 4, 2, Q("45 mm")))
sketch5.addConstraint(Sketcher.Constraint("DistanceX", 8, 2, -1, 1, Q("40 mm")))
sketch5.addConstraint(Sketcher.Constraint("DistanceY", -1, 1, 12, 2, Q("15 mm")))
pocket4 = body.newObject("PartDesign::Pocket", "Pocket003")
pocket4.Profile = sketch5
pocket4.Length = 5.5
pocket4.Reversed = True
doc.recompute()

fillet = body.newObject("PartDesign::Fillet", "Fillet")
fillet.Base = (pocket4, edges_at(pocket4, [(-1, 49, 7), (-1, 1, 7)]))
fillet.Radius = 9
doc.recompute()

fillet2 = body.newObject("PartDesign::Fillet", "Fillet001")
fillet2.Base = (fillet, edges_at(fillet, [(0, 50, 7.5), (0, 0, 7.5)]))
fillet2.Radius = 10

doc.recompute()
